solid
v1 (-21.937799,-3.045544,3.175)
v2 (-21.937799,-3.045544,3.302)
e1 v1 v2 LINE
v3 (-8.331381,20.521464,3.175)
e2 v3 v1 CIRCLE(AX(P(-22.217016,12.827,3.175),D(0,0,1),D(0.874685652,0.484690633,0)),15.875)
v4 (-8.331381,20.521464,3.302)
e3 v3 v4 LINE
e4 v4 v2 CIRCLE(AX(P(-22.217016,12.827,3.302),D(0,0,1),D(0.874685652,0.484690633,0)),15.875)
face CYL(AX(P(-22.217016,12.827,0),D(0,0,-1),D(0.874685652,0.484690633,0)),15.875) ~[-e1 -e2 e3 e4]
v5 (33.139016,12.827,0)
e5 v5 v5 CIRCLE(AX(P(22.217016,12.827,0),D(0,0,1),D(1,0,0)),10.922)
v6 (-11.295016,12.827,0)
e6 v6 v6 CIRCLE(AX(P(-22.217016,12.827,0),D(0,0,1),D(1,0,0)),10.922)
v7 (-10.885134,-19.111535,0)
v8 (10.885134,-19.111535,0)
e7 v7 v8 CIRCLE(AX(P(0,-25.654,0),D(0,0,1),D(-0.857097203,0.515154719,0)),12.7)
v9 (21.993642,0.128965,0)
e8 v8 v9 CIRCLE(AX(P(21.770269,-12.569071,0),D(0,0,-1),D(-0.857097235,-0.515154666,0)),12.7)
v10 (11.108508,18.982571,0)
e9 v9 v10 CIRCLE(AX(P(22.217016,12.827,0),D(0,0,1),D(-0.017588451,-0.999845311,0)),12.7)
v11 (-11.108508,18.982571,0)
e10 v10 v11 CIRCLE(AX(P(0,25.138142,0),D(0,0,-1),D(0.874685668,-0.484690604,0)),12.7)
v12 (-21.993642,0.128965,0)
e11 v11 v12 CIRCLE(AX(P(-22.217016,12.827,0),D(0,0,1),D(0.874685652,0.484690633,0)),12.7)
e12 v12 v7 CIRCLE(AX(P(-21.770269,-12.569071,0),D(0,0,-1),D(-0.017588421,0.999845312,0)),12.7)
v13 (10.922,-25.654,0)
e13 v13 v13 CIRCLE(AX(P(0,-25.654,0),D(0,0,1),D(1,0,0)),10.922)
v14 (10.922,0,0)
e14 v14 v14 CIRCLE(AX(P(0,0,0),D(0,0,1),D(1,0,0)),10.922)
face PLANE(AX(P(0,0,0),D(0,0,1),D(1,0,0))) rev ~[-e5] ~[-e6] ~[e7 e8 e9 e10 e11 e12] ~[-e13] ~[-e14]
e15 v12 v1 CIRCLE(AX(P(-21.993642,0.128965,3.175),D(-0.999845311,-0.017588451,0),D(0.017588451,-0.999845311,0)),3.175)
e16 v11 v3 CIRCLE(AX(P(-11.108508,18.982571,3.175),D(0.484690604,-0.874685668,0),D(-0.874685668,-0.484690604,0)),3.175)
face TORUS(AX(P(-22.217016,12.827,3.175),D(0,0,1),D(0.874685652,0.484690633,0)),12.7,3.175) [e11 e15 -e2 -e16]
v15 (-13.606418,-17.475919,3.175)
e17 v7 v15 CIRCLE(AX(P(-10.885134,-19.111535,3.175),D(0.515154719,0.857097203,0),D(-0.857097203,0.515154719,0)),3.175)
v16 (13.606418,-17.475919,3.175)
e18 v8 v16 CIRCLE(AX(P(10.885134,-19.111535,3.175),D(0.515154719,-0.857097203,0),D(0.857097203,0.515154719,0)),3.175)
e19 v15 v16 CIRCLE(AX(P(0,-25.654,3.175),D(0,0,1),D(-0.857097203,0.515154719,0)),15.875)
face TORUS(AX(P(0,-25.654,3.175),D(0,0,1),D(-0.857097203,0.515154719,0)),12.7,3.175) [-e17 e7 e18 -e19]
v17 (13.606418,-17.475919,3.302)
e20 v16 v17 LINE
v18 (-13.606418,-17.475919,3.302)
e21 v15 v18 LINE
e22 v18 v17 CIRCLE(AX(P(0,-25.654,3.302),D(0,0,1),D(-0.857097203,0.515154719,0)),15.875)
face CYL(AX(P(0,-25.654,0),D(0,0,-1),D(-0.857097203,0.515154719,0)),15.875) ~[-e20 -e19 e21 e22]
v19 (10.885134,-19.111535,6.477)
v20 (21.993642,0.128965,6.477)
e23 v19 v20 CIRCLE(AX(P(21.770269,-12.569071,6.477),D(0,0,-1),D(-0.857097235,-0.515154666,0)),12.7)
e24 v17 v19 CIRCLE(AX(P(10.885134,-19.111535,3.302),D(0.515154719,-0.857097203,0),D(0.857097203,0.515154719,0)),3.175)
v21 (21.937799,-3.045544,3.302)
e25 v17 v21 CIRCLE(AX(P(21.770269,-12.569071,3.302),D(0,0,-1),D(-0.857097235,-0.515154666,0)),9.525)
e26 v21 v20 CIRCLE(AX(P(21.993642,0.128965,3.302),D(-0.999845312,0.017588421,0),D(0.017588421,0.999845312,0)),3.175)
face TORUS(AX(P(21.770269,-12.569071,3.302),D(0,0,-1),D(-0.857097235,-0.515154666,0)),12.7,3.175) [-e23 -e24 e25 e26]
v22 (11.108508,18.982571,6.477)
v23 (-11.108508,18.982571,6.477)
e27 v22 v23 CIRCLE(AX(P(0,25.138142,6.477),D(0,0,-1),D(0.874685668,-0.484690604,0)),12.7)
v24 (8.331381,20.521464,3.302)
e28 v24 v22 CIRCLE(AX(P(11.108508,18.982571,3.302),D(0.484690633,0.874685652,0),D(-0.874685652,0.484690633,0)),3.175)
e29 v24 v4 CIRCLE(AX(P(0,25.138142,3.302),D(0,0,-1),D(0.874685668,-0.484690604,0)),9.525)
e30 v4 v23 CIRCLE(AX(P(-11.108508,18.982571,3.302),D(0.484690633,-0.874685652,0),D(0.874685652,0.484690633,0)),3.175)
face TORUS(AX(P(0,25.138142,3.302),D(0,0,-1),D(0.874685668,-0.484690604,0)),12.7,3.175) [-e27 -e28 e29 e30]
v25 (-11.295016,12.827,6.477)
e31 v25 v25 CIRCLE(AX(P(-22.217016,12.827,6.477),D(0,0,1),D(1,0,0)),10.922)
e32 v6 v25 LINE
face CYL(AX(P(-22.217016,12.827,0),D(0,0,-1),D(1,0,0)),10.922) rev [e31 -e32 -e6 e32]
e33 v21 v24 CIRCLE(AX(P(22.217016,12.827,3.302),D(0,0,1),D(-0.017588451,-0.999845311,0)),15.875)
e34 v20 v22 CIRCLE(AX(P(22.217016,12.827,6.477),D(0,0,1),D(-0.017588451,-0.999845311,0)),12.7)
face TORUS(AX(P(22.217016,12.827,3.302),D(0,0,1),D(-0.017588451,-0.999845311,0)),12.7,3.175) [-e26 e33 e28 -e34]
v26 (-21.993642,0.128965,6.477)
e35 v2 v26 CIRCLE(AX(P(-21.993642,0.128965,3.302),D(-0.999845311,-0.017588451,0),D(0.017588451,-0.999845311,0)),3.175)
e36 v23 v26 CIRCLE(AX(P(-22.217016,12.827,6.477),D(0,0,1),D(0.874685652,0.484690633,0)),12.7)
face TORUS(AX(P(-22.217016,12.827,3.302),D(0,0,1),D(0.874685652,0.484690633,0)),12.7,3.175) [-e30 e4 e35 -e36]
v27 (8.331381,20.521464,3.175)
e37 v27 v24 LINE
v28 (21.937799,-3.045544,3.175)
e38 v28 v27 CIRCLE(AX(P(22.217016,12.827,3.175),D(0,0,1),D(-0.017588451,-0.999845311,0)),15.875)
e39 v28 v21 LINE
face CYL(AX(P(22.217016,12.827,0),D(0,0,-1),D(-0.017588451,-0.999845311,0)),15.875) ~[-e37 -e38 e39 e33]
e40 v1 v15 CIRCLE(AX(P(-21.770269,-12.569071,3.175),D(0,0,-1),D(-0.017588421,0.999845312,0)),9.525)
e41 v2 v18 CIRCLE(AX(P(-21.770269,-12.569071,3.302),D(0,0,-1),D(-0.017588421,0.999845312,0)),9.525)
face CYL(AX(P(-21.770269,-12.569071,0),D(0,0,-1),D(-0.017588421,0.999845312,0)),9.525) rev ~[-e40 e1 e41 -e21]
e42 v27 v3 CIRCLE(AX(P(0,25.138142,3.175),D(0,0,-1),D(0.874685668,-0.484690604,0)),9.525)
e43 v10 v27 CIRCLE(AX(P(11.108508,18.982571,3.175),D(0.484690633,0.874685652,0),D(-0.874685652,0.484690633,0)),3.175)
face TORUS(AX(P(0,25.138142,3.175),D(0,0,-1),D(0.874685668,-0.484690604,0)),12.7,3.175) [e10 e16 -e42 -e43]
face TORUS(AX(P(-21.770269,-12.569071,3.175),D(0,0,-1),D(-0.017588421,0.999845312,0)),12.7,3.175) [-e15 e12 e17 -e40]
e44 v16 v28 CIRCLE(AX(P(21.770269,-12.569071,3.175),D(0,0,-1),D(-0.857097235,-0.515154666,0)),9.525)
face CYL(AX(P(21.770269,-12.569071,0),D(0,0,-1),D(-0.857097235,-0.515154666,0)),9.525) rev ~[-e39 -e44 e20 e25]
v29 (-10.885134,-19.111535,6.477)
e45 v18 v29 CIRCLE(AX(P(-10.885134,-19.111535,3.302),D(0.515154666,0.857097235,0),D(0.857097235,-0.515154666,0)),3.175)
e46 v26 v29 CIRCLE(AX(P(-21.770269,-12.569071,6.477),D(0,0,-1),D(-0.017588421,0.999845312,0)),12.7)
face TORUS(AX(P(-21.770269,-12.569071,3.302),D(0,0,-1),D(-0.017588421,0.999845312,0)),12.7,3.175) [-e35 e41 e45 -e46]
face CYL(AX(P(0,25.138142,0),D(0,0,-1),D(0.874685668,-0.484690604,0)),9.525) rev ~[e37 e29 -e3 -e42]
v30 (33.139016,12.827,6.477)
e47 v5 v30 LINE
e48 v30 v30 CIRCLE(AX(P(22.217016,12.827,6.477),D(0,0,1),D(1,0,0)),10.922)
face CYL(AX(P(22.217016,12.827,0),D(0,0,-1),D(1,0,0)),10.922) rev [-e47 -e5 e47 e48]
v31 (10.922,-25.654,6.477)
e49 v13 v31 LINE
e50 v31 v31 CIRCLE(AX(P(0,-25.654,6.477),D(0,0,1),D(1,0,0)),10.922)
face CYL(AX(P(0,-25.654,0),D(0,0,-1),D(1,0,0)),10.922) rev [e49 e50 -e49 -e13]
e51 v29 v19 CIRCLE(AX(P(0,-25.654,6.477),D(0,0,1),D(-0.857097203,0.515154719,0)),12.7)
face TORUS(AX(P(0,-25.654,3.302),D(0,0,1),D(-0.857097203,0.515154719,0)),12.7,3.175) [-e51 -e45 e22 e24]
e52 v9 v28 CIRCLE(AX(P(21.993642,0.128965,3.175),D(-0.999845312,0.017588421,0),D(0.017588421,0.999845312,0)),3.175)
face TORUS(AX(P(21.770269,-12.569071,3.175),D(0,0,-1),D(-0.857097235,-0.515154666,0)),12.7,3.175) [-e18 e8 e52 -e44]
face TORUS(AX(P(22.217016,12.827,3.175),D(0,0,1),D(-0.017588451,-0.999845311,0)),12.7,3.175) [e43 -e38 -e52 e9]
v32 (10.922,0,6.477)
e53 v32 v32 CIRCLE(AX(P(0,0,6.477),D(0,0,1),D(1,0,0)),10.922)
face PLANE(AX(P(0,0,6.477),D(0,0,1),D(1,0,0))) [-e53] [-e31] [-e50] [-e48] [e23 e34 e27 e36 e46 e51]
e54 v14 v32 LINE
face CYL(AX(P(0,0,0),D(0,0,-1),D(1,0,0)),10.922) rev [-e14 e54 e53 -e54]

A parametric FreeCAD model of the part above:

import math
import FreeCAD as App
import Part
import Sketcher
from FreeCAD import Vector
Q = App.Units.Quantity


def edges_at(feature, points):
    """Names of the edges that pass closest to the given points."""
    edges = feature.Shape.Edges
    near = lambda p: min(range(len(edges)), key=lambda i: edges[i].distToShape(Part.Vertex(*p))[0])
    return sorted({f"Edge{near(p) + 1}" for p in points})

doc = App.newDocument("Part")
params = doc.addObject("Spreadsheet::Sheet", "Params")
for row, (alias, value) in enumerate([
    ("sketch1_diameter", "0.86 in"),
    ("sketch1_radius", "0.375 in"),
    ("sketch1_radius2", "0.625 in"),
    ("pad1_length", "0.255 in"),
    ("fillet_radius", "0.125 in"),
    ("fillet2_radius", "0.125 in"),
], start=1):
    params.set(f"A{row}", alias)
    params.set(f"B{row}", "=" + value)
    params.setAlias(f"B{row}", alias)

body = doc.addObject("PartDesign::Body", "Body")

sketch1 = body.newObject("Sketcher::SketchObject", "Sketch")
sketch1.AttachmentSupport = (doc.getObject("XY_Plane"), [""])
sketch1.MapMode = "FlatFace"
sketch1.addGeometry([
    Part.ArcOfCircle(Part.Circle(Vector(0, 25, 0), Vector(0, 0, 1), 10), math.radians(-151), math.radians(-29)),
    Part.ArcOfCircle(Part.Circle(Vector(-22, 13, 0), Vector(0, 0, 1), 16), math.radians(29), math.radians(271)),
    Part.ArcOfCircle(Part.Circle(Vector(-22, -13, 0), Vector(0, 0, 1), 10), math.radians(-31), math.radians(91)),
    Part.ArcOfCircle(Part.Circle(Vector(0, -26, 0), Vector(0, 0, 1), 16), math.radians(149), math.radians(391)),
    Part.ArcOfCircle(Part.Circle(Vector(22, -13, 0), Vector(0, 0, 1), 10), math.radians(89), math.radians(211)),
    Part.ArcOfCircle(Part.Circle(Vector(22, 13, 0), Vector(0, 0, 1), 16), math.radians(-91), math.radians(151)),
    Part.Circle(Vector(0, -26, 0), Vector(0, 0, 1), 11),
    Part.Circle(Vector(-22, 13, 0), Vector(0, 0, 1), 11),
    Part.Circle(Vector(0, 0, 0), Vector(0, 0, 1), 11),
    Part.Circle(Vector(22, 13, 0), Vector(0, 0, 1), 11),
], False)
sketch1.addConstraint([
    Sketcher.Constraint("Tangent", 0, 1, 1, 1),
    Sketcher.Constraint("Tangent", 1, 2, 2, 2),
    Sketcher.Constraint("Tangent", 2, 1, 3, 1),
    Sketcher.Constraint("Tangent", 3, 2, 4, 2),
    Sketcher.Constraint("Tangent", 4, 1, 5, 1),
    Sketcher.Constraint("Tangent", 5, 2, 0, 2),
    Sketcher.Constraint("Coincident", 8, 3, -1, 1),
    Sketcher.Constraint("Coincident", 6, 3, 3, 3),
    Sketcher.Constraint("Coincident", 7, 3, 1, 3),
    Sketcher.Constraint("Coincident", 9, 3, 5, 3),
    Sketcher.Constraint("Equal", 0, 2),
    Sketcher.Constraint("Equal", 1, 3),
    Sketcher.Constraint("Equal", 2, 4),
    Sketcher.Constraint("Equal", 3, 5),
    Sketcher.Constraint("Equal", 6, 7),
    Sketcher.Constraint("Equal", 7, 8),
    Sketcher.Constraint("Equal", 8, 9),
    Sketcher.Constraint("Symmetric", 2, 3, 4, 3, -2),
    Sketcher.Constraint("PointOnObject", 0, 3, -2),
    Sketcher.Constraint("Diameter", 6, Q("0.86 in")),
    Sketcher.Constraint("Radius", 0, Q("0.375 in")),
    Sketcher.Constraint("Radius", 1, Q("0.625 in")),
    Sketcher.Constraint("DistanceY", 3, 3, -1, 1, Q("1.01 in")),
    Sketcher.Constraint("DistanceY", -1, 1, 1, 3, Q("0.505 in")),
    Sketcher.Constraint("DistanceX", 1, 2, -1, 1, Q("21.937799 mm")),
])
sketch1.setExpression("Constraints[19]", "Params.sketch1_diameter")
sketch1.setExpression("Constraints[20]", "Params.sketch1_radius")
sketch1.setExpression("Constraints[21]", "Params.sketch1_radius2")
pad1 = body.newObject("PartDesign::Pad", "Pad")
pad1.Profile = sketch1
pad1.setExpression("Length", "Params.pad1_length")
doc.recompute()

fillet = body.newObject("PartDesign::Fillet", "Fillet")
fillet.Base = (pad1, edges_at(pad1, [(-35.965, 20.765, 6.477)]))
fillet.setExpression("Radius", "Params.fillet_radius")
doc.recompute()

fillet2 = body.newObject("PartDesign::Fillet", "Fillet001")
fillet2.Base = (fillet, edges_at(fillet, [(0, -41.529, 0)]))
fillet2.setExpression("Radius", "Params.fillet2_radius")

doc.recompute()
